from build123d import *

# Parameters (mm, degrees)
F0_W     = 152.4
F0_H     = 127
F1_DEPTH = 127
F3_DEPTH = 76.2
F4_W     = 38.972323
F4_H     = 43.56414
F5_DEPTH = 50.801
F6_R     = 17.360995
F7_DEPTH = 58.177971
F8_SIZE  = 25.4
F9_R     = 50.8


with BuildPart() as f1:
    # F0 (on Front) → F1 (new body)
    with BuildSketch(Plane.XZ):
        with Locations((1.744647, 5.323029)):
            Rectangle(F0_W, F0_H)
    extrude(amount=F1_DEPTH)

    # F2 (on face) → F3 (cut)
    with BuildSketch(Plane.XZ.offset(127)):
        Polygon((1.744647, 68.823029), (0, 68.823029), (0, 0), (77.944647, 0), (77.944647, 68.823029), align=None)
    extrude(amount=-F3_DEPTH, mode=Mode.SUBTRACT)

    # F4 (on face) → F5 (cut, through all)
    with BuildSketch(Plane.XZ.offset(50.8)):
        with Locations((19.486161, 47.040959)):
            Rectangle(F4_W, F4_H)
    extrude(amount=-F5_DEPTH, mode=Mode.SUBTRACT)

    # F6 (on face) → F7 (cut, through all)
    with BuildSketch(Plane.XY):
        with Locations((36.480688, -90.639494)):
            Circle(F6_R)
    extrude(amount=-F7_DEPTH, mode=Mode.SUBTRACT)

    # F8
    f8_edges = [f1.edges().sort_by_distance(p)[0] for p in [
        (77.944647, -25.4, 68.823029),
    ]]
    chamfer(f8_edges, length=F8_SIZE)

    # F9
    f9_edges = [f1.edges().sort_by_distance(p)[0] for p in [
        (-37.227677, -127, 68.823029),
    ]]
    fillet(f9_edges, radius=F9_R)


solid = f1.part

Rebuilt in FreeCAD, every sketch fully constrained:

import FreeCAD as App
import Part
import Sketcher
from FreeCAD import Vector
Q = App.Units.Quantity


def edges_at(feature, points):
    """Names of the edges that pass closest to the given points."""
    edges = feature.Shape.Edges
    near = lambda p: min(range(len(edges)), key=lambda i: edges[i].distToShape(Part.Vertex(*p))[0])
    return sorted({f"Edge{near(p) + 1}" for p in points})

doc = App.newDocument("Part")
body = doc.addObject("PartDesign::Body", "Body")

# Sketch on XZ plane
sketch1 = doc.addObject("Sketcher::SketchObject", "Sketch")
body.addObject(sketch1)
sketch1.AttachmentSupport = (doc.XZ_Plane, [""])
sketch1.MapMode = "FlatFace"
sketch1.addGeometry(Part.LineSegment(Vector(-74, 69, 0), Vector(-74, -58, 0)), False)
sketch1.addGeometry(Part.LineSegment(Vector(-74, -58, 0), Vector(78, -58, 0)), False)
sketch1.addGeometry(Part.LineSegment(Vector(78, -58, 0), Vector(78, 69, 0)), False)
sketch1.addGeometry(Part.LineSegment(Vector(78, 69, 0), Vector(-74, 69, 0)), False)
sketch1.addConstraint(Sketcher.Constraint("Coincident", 0, 2, 1, 1))
sketch1.addConstraint(Sketcher.Constraint("Coincident", 1, 2, 2, 1))
sketch1.addConstraint(Sketcher.Constraint("Coincident", 2, 2, 3, 1))
sketch1.addConstraint(Sketcher.Constraint("Coincident", 3, 2, 0, 1))
sketch1.addConstraint(Sketcher.Constraint("Vertical", 0))
sketch1.addConstraint(Sketcher.Constraint("Horizontal", 1))
sketch1.addConstraint(Sketcher.Constraint("Vertical", 2))
sketch1.addConstraint(Sketcher.Constraint("Horizontal", 3))
sketch1.addConstraint(Sketcher.Constraint("DistanceX", 1, 1, 1, 2, Q("6 in")))
sketch1.addConstraint(Sketcher.Constraint("DistanceY", 0, 2, 0, 1, Q("5 in")))
sketch1.addConstraint(Sketcher.Constraint("DistanceY", 0, 2, -1, 1, Q("58.176971 mm")))
sketch1.addConstraint(Sketcher.Constraint("DistanceX", 0, 2, -1, 1, Q("74.455353 mm")))
pad1 = doc.addObject("PartDesign::Pad", "Pad")
body.addObject(pad1)
pad1.Profile = sketch1
pad1.Length = Q("5 in")

# Sketch on XZ plane
sketch2 = doc.addObject("Sketcher::SketchObject", "Sketch001")
body.addObject(sketch2)
sketch2.AttachmentSupport = (doc.XZ_Plane, [""])
sketch2.MapMode = "FlatFace"
sketch2.AttachmentOffset = App.Placement(Vector(0, 0, 5 * 25.4), App.Rotation())
sketch2.addGeometry(Part.LineSegment(Vector(0, 69, 0), Vector(0, 0, 0)), False)
sketch2.addGeometry(Part.LineSegment(Vector(0, 0, 0), Vector(78, 0, 0)), False)
sketch2.addGeometry(Part.LineSegment(Vector(78, 0, 0), Vector(78, 69, 0)), False)
sketch2.addGeometry(Part.LineSegment(Vector(78, 69, 0), Vector(0, 69, 0)), False)
sketch2.addConstraint(Sketcher.Constraint("Coincident", 0, 2, 1, 1))
sketch2.addConstraint(Sketcher.Constraint("Coincident", 1, 2, 2, 1))
sketch2.addConstraint(Sketcher.Constraint("Coincident", 2, 2, 3, 1))
sketch2.addConstraint(Sketcher.Constraint("Coincident", 3, 2, 0, 1))
sketch2.addConstraint(Sketcher.Constraint("Vertical", 0))
sketch2.addConstraint(Sketcher.Constraint("Horizontal", 1))
sketch2.addConstraint(Sketcher.Constraint("Vertical", 2))
sketch2.addConstraint(Sketcher.Constraint("Horizontal", 3))
sketch2.addConstraint(Sketcher.Constraint("Coincident", 0, 2, -1, 1))
sketch2.addConstraint(Sketcher.Constraint("DistanceY", 0, 2, 0, 1, Q("68.823029 mm")))
sketch2.addConstraint(Sketcher.Constraint("DistanceX", 1, 1, 1, 2, Q("77.944647 mm")))
pocket1 = doc.addObject("PartDesign::Pocket", "Pocket")
body.addObject(pocket1)
pocket1.Profile = sketch2
pocket1.Length = Q("3 in")

# Sketch on XZ plane
sketch3 = doc.addObject("Sketcher::SketchObject", "Sketch002")
body.addObject(sketch3)
sketch3.AttachmentSupport = (doc.XZ_Plane, [""])
sketch3.MapMode = "FlatFace"
sketch3.AttachmentOffset = App.Placement(Vector(0, 0, 2 * 25.4), App.Rotation())
sketch3.addGeometry(Part.LineSegment(Vector(0, 69, 0), Vector(0, 25, 0)), False)
sketch3.addGeometry(Part.LineSegment(Vector(0, 25, 0), Vector(39, 25, 0)), False)
sketch3.addGeometry(Part.LineSegment(Vector(39, 25, 0), Vector(39, 69, 0)), False)
sketch3.addGeometry(Part.LineSegment(Vector(39, 69, 0), Vector(0, 69, 0)), False)
sketch3.addConstraint(Sketcher.Constraint("Coincident", 0, 2, 1, 1))
sketch3.addConstraint(Sketcher.Constraint("Coincident", 1, 2, 2, 1))
sketch3.addConstraint(Sketcher.Constraint("Coincident", 2, 2, 3, 1))
sketch3.addConstraint(Sketcher.Constraint("Coincident", 3, 2, 0, 1))
sketch3.addConstraint(Sketcher.Constraint("Vertical", 0))
sketch3.addConstraint(Sketcher.Constraint("Horizontal", 1))
sketch3.addConstraint(Sketcher.Constraint("Vertical", 2))
sketch3.addConstraint(Sketcher.Constraint("Horizontal", 3))
sketch3.addConstraint(Sketcher.Constraint("PointOnObject", 0, 2, -2))
sketch3.addConstraint(Sketcher.Constraint("DistanceY", 0, 2, 0, 1, Q("43.56414 mm")))
sketch3.addConstraint(Sketcher.Constraint("DistanceX", 1, 1, 1, 2, Q("38.972323 mm")))
sketch3.addConstraint(Sketcher.Constraint("DistanceY", -1, 1, 0, 2, Q("25.258889 mm")))
pocket2 = doc.addObject("PartDesign::Pocket", "Pocket001")
body.addObject(pocket2)
pocket2.Profile = sketch3
pocket2.Type = "ThroughAll"

# Sketch on XY plane
sketch4 = doc.addObject("Sketcher::SketchObject", "Sketch003")
body.addObject(sketch4)
sketch4.AttachmentSupport = (doc.XY_Plane, [""])
sketch4.MapMode = "FlatFace"
sketch4.addGeometry(Part.Circle(Vector(36, -91, 0), Vector(0, 0, 1), 17), False)
sketch4.addConstraint(Sketcher.Constraint("Diameter", 0, Q("34.72199 mm")))
sketch4.addConstraint(Sketcher.Constraint("DistanceX", -1, 1, 0, 3, Q("36.480688 mm")))
sketch4.addConstraint(Sketcher.Constraint("DistanceY", 0, 3, -1, 1, Q("90.639494 mm")))
pocket3 = doc.addObject("PartDesign::Pocket", "Pocket002")
body.addObject(pocket3)
pocket3.Profile = sketch4
pocket3.Type = "ThroughAll"
doc.recompute()

chamfer = doc.addObject("PartDesign::Chamfer", "Chamfer")
body.addObject(chamfer)
chamfer.Base = (pocket3, edges_at(pocket3, [(77.945, -25.4, 68.823)]))
chamfer.Size = Q("1 in")
doc.recompute()

fillet = doc.addObject("PartDesign::Fillet", "Fillet")
body.addObject(fillet)
fillet.Base = (chamfer, edges_at(chamfer, [(-37.228, -127, 68.823)]))
fillet.Radius = Q("2 in")

doc.recompute()
